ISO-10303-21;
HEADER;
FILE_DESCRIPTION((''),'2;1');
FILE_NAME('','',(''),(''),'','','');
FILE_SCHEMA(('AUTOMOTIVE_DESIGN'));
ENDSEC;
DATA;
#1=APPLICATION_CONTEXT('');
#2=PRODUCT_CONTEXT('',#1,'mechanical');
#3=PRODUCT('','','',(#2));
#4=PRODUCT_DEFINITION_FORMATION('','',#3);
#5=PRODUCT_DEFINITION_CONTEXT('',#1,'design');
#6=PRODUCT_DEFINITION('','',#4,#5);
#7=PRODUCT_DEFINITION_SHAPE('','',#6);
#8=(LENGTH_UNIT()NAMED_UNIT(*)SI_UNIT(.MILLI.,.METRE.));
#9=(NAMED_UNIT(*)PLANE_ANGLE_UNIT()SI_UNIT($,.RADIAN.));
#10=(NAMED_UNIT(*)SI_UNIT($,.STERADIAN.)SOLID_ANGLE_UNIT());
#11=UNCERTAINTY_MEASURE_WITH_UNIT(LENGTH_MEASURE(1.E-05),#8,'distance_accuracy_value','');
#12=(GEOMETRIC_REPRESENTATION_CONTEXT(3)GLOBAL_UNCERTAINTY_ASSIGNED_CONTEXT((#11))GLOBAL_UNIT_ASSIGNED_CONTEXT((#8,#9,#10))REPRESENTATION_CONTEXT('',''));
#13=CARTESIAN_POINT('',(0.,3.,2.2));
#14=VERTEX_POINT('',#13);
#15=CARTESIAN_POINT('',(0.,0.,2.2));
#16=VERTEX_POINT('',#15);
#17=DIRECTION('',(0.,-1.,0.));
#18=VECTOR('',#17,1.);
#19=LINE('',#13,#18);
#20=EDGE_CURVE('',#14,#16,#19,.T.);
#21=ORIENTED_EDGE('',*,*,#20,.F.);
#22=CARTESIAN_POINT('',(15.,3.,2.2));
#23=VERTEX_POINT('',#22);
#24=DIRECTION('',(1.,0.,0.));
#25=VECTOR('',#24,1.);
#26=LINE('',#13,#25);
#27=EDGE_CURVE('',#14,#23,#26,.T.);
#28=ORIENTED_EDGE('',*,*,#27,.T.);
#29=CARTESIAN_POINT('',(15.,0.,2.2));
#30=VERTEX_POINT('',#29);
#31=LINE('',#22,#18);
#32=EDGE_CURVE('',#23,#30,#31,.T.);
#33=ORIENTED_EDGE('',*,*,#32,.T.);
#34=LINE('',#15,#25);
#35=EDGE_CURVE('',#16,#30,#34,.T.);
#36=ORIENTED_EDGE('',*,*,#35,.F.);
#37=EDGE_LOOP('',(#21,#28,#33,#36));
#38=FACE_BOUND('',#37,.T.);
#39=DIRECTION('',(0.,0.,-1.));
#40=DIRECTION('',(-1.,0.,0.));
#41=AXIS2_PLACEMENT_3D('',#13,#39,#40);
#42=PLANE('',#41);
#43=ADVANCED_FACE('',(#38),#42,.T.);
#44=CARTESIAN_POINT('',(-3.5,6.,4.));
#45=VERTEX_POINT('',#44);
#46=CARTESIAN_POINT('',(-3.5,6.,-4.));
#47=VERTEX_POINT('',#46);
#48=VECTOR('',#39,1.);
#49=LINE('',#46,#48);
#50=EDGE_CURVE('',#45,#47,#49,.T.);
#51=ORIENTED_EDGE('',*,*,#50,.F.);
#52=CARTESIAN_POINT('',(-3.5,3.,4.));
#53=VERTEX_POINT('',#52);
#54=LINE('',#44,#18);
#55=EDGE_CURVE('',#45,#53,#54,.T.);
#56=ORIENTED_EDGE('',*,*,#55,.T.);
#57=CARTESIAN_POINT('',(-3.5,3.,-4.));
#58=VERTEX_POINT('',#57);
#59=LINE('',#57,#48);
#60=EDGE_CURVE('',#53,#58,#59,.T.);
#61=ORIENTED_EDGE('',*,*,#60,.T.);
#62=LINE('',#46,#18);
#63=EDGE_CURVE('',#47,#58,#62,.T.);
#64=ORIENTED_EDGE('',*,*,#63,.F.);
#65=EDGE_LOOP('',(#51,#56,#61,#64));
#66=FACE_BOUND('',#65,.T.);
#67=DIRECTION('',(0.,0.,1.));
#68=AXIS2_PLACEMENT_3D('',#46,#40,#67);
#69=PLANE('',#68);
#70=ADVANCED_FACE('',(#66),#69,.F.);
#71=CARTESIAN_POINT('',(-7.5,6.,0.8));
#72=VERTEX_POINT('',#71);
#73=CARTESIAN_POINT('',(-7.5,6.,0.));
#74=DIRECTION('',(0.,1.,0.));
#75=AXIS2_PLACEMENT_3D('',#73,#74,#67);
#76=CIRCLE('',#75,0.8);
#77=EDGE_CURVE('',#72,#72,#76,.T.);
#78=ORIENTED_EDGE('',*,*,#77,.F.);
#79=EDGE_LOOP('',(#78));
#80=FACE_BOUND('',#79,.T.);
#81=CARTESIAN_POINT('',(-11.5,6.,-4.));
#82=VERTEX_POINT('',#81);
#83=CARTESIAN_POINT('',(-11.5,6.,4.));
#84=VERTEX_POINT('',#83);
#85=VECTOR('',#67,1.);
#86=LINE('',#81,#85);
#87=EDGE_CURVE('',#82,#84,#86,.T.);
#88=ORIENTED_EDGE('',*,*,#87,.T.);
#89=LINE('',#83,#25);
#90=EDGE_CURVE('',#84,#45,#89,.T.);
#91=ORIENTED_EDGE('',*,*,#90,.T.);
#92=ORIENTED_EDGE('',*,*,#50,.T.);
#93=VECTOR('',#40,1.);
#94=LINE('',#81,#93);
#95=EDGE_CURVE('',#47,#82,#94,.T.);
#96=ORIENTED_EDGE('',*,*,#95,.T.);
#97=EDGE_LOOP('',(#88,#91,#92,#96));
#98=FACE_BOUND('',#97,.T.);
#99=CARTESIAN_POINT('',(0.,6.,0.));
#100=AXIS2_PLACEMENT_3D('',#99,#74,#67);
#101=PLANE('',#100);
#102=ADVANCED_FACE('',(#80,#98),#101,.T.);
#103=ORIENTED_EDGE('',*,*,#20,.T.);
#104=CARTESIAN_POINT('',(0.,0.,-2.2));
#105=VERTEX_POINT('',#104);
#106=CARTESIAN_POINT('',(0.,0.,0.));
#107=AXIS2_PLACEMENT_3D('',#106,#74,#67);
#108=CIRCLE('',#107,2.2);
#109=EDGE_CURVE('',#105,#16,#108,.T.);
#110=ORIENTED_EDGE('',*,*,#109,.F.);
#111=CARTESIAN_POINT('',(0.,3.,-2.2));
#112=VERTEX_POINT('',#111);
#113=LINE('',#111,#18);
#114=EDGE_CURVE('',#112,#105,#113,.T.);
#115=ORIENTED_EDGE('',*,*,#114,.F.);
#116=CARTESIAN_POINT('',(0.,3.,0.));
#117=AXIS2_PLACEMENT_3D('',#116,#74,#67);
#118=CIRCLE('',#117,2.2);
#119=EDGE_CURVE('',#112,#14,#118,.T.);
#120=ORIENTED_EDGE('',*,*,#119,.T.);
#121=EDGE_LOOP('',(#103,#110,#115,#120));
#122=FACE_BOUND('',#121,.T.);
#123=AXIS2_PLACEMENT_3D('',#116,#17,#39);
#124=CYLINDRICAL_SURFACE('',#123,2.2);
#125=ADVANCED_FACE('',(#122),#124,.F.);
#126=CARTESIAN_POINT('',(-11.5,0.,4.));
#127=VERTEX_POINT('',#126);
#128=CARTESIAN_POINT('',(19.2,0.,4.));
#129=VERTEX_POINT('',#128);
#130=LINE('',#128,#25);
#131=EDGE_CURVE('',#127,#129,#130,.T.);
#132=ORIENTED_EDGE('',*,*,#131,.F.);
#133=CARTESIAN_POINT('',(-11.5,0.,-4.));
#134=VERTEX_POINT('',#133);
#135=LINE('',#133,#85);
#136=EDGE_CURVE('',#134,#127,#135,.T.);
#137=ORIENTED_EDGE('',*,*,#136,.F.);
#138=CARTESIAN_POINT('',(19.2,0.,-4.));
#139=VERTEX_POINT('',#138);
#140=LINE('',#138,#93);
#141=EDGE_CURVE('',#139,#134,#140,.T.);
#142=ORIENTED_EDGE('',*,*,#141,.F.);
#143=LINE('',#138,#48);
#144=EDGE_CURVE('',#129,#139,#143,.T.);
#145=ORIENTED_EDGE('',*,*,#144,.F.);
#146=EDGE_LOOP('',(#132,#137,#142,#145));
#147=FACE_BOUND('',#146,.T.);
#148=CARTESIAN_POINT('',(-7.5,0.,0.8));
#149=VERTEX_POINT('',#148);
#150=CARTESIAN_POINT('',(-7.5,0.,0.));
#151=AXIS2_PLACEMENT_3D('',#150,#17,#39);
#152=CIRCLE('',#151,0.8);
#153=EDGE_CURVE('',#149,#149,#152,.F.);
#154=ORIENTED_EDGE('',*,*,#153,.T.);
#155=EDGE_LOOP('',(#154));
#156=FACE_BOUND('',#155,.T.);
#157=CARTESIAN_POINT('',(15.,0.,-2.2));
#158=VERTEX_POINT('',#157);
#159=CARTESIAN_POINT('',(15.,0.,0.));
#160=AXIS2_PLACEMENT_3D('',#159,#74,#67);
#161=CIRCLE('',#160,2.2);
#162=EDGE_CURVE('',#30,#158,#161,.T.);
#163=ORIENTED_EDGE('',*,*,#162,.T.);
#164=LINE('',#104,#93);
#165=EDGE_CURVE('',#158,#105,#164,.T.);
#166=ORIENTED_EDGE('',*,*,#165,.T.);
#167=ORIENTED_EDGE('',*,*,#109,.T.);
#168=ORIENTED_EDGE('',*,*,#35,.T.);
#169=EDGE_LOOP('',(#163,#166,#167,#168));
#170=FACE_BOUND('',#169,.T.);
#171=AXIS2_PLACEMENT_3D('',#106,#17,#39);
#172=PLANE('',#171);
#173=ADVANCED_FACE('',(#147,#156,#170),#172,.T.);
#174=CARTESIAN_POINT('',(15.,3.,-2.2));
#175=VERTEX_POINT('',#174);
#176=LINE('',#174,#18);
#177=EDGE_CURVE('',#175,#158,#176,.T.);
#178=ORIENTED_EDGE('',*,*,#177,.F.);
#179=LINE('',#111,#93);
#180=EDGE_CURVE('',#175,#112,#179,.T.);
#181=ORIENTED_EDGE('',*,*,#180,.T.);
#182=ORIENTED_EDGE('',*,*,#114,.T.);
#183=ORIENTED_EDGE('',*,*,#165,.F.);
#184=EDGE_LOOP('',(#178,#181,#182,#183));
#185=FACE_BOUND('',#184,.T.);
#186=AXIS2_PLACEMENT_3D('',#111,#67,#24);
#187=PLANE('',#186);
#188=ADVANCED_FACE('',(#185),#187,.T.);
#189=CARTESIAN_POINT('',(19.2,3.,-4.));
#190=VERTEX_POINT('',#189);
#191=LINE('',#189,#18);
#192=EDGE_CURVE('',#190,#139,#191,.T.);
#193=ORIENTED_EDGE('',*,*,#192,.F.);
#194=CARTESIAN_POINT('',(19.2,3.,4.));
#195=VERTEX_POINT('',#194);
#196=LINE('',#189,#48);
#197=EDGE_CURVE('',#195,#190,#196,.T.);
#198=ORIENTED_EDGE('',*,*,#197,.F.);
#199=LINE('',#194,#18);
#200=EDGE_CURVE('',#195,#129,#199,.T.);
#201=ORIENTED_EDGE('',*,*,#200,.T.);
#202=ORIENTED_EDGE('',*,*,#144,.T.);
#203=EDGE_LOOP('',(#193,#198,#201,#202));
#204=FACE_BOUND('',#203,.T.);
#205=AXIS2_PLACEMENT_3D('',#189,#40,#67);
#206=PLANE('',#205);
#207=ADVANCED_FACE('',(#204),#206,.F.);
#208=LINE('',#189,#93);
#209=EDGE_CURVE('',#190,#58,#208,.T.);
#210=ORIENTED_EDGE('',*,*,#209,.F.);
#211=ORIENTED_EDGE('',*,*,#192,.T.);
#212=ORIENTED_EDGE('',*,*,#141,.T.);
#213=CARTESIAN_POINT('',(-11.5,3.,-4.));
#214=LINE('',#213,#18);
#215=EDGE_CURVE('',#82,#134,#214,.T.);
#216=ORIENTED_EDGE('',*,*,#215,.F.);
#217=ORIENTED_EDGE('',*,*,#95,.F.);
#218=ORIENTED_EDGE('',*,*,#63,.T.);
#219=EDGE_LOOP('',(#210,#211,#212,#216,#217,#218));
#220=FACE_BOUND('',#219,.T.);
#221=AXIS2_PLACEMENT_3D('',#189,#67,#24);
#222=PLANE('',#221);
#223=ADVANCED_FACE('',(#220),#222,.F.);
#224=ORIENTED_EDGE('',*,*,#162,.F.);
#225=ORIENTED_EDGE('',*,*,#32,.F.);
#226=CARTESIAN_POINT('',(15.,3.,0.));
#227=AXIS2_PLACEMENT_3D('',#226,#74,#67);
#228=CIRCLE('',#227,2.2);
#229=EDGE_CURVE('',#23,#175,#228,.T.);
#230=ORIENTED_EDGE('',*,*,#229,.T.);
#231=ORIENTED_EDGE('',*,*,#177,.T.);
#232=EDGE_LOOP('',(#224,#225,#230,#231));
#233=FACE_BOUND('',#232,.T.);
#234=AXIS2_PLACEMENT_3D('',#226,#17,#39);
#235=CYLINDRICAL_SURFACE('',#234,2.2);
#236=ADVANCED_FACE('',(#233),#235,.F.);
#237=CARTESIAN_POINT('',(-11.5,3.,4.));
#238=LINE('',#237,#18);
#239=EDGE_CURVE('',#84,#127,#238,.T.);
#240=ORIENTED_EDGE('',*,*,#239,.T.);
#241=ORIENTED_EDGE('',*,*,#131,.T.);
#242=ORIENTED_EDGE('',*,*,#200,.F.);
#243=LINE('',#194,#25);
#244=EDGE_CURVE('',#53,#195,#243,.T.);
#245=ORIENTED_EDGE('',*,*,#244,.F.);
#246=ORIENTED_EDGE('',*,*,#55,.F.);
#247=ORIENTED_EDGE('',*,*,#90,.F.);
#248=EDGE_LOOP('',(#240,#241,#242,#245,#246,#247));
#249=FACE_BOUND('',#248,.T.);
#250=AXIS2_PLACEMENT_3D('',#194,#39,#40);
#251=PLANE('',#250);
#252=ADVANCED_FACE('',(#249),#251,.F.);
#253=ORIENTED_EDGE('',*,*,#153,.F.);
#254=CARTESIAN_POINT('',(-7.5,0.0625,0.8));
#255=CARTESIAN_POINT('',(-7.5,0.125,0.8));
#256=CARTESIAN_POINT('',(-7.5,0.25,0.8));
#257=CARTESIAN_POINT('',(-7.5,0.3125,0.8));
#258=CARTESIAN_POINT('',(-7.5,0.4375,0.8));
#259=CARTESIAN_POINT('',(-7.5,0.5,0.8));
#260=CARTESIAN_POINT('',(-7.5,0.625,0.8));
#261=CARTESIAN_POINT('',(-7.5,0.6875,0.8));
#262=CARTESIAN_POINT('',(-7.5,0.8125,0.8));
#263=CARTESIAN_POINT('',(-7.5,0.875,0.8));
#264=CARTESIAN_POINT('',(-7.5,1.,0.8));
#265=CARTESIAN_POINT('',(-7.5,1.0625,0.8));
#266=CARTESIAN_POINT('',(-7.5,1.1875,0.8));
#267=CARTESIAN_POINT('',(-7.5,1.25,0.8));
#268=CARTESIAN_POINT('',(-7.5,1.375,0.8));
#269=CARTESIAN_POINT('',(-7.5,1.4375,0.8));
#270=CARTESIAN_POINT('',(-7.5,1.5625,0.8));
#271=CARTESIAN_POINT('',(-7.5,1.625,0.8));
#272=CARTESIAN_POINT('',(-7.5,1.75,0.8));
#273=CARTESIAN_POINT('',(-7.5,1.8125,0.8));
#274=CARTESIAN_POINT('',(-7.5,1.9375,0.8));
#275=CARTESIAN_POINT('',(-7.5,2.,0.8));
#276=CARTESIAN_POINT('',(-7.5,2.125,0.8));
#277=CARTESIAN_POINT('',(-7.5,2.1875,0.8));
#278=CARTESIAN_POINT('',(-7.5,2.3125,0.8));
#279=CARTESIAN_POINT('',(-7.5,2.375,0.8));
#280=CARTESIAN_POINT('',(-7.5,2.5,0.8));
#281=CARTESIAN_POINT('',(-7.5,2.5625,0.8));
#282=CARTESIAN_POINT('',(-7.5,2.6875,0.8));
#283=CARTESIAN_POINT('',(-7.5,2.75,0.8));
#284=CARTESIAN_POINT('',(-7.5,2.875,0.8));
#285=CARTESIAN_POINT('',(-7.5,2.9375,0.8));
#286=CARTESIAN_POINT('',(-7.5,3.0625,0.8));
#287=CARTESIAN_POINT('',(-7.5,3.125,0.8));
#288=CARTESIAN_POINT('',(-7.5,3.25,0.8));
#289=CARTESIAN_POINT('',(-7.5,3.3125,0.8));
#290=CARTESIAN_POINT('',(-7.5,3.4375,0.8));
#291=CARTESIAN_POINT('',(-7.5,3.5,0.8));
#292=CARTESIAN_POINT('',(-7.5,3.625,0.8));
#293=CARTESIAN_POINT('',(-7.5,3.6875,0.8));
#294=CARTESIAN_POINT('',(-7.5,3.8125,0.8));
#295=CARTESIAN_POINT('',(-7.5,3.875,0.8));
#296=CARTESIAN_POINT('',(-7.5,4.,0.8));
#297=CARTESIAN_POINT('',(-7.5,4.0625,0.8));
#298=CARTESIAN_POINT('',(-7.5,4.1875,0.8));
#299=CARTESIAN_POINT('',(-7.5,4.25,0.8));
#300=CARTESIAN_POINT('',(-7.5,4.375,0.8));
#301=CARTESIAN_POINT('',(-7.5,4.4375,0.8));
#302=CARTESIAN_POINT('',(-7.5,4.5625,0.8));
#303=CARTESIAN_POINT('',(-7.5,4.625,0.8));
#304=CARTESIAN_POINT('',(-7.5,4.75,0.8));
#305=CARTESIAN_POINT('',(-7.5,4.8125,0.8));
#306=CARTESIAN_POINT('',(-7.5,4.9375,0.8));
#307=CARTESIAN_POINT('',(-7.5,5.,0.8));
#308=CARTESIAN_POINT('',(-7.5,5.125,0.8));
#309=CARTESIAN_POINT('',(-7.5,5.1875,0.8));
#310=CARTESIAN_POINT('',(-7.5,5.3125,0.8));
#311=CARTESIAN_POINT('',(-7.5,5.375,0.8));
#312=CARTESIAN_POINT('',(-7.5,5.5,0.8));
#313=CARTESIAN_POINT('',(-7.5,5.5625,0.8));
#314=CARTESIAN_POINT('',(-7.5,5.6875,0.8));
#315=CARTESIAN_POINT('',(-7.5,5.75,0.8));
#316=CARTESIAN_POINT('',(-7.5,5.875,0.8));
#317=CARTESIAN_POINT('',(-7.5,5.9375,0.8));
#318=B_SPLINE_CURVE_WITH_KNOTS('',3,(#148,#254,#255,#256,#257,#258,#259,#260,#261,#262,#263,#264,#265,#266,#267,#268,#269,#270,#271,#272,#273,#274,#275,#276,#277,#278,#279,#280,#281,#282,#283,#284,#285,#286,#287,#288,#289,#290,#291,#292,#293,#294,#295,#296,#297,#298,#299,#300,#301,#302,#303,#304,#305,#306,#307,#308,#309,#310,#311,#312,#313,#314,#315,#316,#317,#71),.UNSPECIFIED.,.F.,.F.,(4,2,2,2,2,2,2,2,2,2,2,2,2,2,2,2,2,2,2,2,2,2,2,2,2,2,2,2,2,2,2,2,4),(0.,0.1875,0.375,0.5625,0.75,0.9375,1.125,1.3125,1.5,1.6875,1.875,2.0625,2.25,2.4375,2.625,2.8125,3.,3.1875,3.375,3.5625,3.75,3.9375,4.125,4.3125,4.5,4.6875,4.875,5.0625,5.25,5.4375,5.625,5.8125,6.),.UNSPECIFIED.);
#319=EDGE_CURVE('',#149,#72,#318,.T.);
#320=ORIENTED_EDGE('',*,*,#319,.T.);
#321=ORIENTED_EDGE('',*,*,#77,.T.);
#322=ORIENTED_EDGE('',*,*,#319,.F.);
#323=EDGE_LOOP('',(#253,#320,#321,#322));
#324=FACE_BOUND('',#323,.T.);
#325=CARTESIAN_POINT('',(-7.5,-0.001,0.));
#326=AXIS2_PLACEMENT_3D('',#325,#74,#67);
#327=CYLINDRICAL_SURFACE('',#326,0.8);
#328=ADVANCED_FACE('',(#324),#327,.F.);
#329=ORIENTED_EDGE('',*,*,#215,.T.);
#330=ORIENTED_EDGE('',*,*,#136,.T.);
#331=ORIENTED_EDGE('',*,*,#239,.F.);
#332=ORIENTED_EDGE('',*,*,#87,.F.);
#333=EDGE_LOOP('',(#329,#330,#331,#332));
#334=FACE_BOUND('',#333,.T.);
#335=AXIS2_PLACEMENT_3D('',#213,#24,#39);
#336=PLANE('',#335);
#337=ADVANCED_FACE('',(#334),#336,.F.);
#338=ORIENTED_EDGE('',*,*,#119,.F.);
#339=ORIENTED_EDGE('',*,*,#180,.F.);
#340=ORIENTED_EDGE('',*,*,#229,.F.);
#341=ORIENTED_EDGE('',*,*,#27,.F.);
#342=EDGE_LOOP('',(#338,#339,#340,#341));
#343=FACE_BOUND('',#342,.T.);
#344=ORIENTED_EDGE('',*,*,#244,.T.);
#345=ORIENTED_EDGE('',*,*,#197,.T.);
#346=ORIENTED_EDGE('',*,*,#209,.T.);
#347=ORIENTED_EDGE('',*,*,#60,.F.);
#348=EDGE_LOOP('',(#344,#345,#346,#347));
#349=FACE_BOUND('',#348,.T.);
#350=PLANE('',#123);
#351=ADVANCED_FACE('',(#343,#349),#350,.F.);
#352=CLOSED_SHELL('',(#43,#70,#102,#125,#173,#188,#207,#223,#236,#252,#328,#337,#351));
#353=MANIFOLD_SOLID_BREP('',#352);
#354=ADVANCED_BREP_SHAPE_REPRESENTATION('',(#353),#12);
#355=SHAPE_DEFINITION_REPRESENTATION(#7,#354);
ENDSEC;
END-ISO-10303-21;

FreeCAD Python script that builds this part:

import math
import FreeCAD as App
import Part
import Sketcher
from FreeCAD import Vector
Q = App.Units.Quantity


def add_polygon(sketch, points):
    """Adds a closed chain of lines whose ends are joined by coincident constraints."""
    first, n = sketch.GeometryCount, len(points)
    for a, b in zip(points, points[1:] + points[:1]):
        sketch.addGeometry(Part.LineSegment(App.Vector(*a, 0), App.Vector(*b, 0)), False)
    for i in range(n):
        sketch.addConstraint(Sketcher.Constraint("Coincident", first + i, 2, first + (i + 1) % n, 1))

doc = App.newDocument("Part")
body = doc.addObject("PartDesign::Body", "Body")

sketch1 = body.newObject("Sketcher::SketchObject", "Sketch")
sketch1.AttachmentSupport = (doc.getObject("XZ_Plane"), [""])
sketch1.MapMode = "FlatFace"
add_polygon(sketch1, [(-11.5, -4), (-11.5, 4), (19.2, 4), (19.2, -4)])
sketch1.addGeometry(Part.ArcOfCircle(Part.Circle(Vector(0, 0, 0), Vector(0, 0, 1), 2.2), math.radians(90), math.radians(270)), False)
sketch1.addGeometry(Part.LineSegment(Vector(0, -2.2, 0), Vector(15, -2.2, 0)), False)
sketch1.addGeometry(Part.ArcOfCircle(Part.Circle(Vector(15, 0, 0), Vector(0, 0, 1), 2.2), math.radians(-90), math.radians(90)), False)
sketch1.addGeometry(Part.LineSegment(Vector(15, 2.2, 0), Vector(0, 2.2, 0)), False)
sketch1.addConstraint([
    Sketcher.Constraint("Tangent", 4, 2, 5, 1),
    Sketcher.Constraint("Tangent", 5, 2, 6, 1),
    Sketcher.Constraint("Tangent", 6, 2, 7, 1),
    Sketcher.Constraint("Tangent", 7, 2, 4, 1),
    Sketcher.Constraint("Vertical", 0),
    Sketcher.Constraint("Horizontal", 1),
    Sketcher.Constraint("Vertical", 2),
    Sketcher.Constraint("Horizontal", 3),
    Sketcher.Constraint("Horizontal", 5),
    Sketcher.Constraint("Horizontal", 7),
    Sketcher.Constraint("Coincident", 4, 3, -1, 1),
    Sketcher.Constraint("Radius", 4, Q("2.2 mm")),
    Sketcher.Constraint("DistanceX", 5, 1, 5, 2, Q("15 mm")),
    Sketcher.Constraint("DistanceY", 0, 1, 0, 2, Q("8 mm")),
    Sketcher.Constraint("DistanceX", 1, 1, 1, 2, Q("30.7 mm")),
    Sketcher.Constraint("DistanceY", -1, 1, 0, 2, Q("4 mm")),
    Sketcher.Constraint("DistanceX", 0, 2, -1, 1, Q("11.5 mm")),
])
pad1 = body.newObject("PartDesign::Pad", "Pad")
pad1.Profile = sketch1
pad1.Length = 3
pad1.Reversed = True

sketch2 = body.newObject("Sketcher::SketchObject", "Sketch001")
sketch2.AttachmentSupport = (doc.getObject("XZ_Plane"), [""])
sketch2.MapMode = "FlatFace"
sketch2.AttachmentOffset = App.Placement(Vector(0, 0, -3), App.Rotation())
add_polygon(sketch2, [(-11.5, -4), (-11.5, 4), (-3.5, 4), (-3.5, -4)])
sketch2.addConstraint([
    Sketcher.Constraint("Vertical", 0),
    Sketcher.Constraint("Horizontal", 1),
    Sketcher.Constraint("Vertical", 2),
    Sketcher.Constraint("Horizontal", 3),
    Sketcher.Constraint("Equal", 3, 0),
    Sketcher.Constraint("DistanceX", 1, 1, 1, 2, Q("8 mm")),
    Sketcher.Constraint("DistanceY", -1, 1, 0, 2, Q("4 mm")),
    Sketcher.Constraint("DistanceX", 0, 2, -1, 1, Q("11.5 mm")),
])
pad2 = body.newObject("PartDesign::Pad", "Pad001")
pad2.Profile = sketch2
pad2.Length = 3
pad2.Reversed = True

sketch3 = body.newObject("Sketcher::SketchObject", "Sketch002")
sketch3.AttachmentSupport = (doc.getObject("XZ_Plane"), [""])
sketch3.MapMode = "FlatFace"
sketch3.AttachmentOffset = App.Placement(Vector(0, 0, -6), App.Rotation())
sketch3.addGeometry(Part.Circle(Vector(-7.5, 0, 0), Vector(0, 0, 1), 0.8), False)
sketch3.addConstraint([
    Sketcher.Constraint("PointOnObject", 0, 3, -1),
    Sketcher.Constraint("Diameter", 0, Q("1.6 mm")),
    Sketcher.Constraint("DistanceX", 0, 3, -1, 1, Q("7.5 mm")),
])
pocket1 = body.newObject("PartDesign::Pocket", "Pocket")
pocket1.Profile = sketch3
pocket1.Type = "UpToFirst"
pocket1.Reversed = True

doc.recompute()
